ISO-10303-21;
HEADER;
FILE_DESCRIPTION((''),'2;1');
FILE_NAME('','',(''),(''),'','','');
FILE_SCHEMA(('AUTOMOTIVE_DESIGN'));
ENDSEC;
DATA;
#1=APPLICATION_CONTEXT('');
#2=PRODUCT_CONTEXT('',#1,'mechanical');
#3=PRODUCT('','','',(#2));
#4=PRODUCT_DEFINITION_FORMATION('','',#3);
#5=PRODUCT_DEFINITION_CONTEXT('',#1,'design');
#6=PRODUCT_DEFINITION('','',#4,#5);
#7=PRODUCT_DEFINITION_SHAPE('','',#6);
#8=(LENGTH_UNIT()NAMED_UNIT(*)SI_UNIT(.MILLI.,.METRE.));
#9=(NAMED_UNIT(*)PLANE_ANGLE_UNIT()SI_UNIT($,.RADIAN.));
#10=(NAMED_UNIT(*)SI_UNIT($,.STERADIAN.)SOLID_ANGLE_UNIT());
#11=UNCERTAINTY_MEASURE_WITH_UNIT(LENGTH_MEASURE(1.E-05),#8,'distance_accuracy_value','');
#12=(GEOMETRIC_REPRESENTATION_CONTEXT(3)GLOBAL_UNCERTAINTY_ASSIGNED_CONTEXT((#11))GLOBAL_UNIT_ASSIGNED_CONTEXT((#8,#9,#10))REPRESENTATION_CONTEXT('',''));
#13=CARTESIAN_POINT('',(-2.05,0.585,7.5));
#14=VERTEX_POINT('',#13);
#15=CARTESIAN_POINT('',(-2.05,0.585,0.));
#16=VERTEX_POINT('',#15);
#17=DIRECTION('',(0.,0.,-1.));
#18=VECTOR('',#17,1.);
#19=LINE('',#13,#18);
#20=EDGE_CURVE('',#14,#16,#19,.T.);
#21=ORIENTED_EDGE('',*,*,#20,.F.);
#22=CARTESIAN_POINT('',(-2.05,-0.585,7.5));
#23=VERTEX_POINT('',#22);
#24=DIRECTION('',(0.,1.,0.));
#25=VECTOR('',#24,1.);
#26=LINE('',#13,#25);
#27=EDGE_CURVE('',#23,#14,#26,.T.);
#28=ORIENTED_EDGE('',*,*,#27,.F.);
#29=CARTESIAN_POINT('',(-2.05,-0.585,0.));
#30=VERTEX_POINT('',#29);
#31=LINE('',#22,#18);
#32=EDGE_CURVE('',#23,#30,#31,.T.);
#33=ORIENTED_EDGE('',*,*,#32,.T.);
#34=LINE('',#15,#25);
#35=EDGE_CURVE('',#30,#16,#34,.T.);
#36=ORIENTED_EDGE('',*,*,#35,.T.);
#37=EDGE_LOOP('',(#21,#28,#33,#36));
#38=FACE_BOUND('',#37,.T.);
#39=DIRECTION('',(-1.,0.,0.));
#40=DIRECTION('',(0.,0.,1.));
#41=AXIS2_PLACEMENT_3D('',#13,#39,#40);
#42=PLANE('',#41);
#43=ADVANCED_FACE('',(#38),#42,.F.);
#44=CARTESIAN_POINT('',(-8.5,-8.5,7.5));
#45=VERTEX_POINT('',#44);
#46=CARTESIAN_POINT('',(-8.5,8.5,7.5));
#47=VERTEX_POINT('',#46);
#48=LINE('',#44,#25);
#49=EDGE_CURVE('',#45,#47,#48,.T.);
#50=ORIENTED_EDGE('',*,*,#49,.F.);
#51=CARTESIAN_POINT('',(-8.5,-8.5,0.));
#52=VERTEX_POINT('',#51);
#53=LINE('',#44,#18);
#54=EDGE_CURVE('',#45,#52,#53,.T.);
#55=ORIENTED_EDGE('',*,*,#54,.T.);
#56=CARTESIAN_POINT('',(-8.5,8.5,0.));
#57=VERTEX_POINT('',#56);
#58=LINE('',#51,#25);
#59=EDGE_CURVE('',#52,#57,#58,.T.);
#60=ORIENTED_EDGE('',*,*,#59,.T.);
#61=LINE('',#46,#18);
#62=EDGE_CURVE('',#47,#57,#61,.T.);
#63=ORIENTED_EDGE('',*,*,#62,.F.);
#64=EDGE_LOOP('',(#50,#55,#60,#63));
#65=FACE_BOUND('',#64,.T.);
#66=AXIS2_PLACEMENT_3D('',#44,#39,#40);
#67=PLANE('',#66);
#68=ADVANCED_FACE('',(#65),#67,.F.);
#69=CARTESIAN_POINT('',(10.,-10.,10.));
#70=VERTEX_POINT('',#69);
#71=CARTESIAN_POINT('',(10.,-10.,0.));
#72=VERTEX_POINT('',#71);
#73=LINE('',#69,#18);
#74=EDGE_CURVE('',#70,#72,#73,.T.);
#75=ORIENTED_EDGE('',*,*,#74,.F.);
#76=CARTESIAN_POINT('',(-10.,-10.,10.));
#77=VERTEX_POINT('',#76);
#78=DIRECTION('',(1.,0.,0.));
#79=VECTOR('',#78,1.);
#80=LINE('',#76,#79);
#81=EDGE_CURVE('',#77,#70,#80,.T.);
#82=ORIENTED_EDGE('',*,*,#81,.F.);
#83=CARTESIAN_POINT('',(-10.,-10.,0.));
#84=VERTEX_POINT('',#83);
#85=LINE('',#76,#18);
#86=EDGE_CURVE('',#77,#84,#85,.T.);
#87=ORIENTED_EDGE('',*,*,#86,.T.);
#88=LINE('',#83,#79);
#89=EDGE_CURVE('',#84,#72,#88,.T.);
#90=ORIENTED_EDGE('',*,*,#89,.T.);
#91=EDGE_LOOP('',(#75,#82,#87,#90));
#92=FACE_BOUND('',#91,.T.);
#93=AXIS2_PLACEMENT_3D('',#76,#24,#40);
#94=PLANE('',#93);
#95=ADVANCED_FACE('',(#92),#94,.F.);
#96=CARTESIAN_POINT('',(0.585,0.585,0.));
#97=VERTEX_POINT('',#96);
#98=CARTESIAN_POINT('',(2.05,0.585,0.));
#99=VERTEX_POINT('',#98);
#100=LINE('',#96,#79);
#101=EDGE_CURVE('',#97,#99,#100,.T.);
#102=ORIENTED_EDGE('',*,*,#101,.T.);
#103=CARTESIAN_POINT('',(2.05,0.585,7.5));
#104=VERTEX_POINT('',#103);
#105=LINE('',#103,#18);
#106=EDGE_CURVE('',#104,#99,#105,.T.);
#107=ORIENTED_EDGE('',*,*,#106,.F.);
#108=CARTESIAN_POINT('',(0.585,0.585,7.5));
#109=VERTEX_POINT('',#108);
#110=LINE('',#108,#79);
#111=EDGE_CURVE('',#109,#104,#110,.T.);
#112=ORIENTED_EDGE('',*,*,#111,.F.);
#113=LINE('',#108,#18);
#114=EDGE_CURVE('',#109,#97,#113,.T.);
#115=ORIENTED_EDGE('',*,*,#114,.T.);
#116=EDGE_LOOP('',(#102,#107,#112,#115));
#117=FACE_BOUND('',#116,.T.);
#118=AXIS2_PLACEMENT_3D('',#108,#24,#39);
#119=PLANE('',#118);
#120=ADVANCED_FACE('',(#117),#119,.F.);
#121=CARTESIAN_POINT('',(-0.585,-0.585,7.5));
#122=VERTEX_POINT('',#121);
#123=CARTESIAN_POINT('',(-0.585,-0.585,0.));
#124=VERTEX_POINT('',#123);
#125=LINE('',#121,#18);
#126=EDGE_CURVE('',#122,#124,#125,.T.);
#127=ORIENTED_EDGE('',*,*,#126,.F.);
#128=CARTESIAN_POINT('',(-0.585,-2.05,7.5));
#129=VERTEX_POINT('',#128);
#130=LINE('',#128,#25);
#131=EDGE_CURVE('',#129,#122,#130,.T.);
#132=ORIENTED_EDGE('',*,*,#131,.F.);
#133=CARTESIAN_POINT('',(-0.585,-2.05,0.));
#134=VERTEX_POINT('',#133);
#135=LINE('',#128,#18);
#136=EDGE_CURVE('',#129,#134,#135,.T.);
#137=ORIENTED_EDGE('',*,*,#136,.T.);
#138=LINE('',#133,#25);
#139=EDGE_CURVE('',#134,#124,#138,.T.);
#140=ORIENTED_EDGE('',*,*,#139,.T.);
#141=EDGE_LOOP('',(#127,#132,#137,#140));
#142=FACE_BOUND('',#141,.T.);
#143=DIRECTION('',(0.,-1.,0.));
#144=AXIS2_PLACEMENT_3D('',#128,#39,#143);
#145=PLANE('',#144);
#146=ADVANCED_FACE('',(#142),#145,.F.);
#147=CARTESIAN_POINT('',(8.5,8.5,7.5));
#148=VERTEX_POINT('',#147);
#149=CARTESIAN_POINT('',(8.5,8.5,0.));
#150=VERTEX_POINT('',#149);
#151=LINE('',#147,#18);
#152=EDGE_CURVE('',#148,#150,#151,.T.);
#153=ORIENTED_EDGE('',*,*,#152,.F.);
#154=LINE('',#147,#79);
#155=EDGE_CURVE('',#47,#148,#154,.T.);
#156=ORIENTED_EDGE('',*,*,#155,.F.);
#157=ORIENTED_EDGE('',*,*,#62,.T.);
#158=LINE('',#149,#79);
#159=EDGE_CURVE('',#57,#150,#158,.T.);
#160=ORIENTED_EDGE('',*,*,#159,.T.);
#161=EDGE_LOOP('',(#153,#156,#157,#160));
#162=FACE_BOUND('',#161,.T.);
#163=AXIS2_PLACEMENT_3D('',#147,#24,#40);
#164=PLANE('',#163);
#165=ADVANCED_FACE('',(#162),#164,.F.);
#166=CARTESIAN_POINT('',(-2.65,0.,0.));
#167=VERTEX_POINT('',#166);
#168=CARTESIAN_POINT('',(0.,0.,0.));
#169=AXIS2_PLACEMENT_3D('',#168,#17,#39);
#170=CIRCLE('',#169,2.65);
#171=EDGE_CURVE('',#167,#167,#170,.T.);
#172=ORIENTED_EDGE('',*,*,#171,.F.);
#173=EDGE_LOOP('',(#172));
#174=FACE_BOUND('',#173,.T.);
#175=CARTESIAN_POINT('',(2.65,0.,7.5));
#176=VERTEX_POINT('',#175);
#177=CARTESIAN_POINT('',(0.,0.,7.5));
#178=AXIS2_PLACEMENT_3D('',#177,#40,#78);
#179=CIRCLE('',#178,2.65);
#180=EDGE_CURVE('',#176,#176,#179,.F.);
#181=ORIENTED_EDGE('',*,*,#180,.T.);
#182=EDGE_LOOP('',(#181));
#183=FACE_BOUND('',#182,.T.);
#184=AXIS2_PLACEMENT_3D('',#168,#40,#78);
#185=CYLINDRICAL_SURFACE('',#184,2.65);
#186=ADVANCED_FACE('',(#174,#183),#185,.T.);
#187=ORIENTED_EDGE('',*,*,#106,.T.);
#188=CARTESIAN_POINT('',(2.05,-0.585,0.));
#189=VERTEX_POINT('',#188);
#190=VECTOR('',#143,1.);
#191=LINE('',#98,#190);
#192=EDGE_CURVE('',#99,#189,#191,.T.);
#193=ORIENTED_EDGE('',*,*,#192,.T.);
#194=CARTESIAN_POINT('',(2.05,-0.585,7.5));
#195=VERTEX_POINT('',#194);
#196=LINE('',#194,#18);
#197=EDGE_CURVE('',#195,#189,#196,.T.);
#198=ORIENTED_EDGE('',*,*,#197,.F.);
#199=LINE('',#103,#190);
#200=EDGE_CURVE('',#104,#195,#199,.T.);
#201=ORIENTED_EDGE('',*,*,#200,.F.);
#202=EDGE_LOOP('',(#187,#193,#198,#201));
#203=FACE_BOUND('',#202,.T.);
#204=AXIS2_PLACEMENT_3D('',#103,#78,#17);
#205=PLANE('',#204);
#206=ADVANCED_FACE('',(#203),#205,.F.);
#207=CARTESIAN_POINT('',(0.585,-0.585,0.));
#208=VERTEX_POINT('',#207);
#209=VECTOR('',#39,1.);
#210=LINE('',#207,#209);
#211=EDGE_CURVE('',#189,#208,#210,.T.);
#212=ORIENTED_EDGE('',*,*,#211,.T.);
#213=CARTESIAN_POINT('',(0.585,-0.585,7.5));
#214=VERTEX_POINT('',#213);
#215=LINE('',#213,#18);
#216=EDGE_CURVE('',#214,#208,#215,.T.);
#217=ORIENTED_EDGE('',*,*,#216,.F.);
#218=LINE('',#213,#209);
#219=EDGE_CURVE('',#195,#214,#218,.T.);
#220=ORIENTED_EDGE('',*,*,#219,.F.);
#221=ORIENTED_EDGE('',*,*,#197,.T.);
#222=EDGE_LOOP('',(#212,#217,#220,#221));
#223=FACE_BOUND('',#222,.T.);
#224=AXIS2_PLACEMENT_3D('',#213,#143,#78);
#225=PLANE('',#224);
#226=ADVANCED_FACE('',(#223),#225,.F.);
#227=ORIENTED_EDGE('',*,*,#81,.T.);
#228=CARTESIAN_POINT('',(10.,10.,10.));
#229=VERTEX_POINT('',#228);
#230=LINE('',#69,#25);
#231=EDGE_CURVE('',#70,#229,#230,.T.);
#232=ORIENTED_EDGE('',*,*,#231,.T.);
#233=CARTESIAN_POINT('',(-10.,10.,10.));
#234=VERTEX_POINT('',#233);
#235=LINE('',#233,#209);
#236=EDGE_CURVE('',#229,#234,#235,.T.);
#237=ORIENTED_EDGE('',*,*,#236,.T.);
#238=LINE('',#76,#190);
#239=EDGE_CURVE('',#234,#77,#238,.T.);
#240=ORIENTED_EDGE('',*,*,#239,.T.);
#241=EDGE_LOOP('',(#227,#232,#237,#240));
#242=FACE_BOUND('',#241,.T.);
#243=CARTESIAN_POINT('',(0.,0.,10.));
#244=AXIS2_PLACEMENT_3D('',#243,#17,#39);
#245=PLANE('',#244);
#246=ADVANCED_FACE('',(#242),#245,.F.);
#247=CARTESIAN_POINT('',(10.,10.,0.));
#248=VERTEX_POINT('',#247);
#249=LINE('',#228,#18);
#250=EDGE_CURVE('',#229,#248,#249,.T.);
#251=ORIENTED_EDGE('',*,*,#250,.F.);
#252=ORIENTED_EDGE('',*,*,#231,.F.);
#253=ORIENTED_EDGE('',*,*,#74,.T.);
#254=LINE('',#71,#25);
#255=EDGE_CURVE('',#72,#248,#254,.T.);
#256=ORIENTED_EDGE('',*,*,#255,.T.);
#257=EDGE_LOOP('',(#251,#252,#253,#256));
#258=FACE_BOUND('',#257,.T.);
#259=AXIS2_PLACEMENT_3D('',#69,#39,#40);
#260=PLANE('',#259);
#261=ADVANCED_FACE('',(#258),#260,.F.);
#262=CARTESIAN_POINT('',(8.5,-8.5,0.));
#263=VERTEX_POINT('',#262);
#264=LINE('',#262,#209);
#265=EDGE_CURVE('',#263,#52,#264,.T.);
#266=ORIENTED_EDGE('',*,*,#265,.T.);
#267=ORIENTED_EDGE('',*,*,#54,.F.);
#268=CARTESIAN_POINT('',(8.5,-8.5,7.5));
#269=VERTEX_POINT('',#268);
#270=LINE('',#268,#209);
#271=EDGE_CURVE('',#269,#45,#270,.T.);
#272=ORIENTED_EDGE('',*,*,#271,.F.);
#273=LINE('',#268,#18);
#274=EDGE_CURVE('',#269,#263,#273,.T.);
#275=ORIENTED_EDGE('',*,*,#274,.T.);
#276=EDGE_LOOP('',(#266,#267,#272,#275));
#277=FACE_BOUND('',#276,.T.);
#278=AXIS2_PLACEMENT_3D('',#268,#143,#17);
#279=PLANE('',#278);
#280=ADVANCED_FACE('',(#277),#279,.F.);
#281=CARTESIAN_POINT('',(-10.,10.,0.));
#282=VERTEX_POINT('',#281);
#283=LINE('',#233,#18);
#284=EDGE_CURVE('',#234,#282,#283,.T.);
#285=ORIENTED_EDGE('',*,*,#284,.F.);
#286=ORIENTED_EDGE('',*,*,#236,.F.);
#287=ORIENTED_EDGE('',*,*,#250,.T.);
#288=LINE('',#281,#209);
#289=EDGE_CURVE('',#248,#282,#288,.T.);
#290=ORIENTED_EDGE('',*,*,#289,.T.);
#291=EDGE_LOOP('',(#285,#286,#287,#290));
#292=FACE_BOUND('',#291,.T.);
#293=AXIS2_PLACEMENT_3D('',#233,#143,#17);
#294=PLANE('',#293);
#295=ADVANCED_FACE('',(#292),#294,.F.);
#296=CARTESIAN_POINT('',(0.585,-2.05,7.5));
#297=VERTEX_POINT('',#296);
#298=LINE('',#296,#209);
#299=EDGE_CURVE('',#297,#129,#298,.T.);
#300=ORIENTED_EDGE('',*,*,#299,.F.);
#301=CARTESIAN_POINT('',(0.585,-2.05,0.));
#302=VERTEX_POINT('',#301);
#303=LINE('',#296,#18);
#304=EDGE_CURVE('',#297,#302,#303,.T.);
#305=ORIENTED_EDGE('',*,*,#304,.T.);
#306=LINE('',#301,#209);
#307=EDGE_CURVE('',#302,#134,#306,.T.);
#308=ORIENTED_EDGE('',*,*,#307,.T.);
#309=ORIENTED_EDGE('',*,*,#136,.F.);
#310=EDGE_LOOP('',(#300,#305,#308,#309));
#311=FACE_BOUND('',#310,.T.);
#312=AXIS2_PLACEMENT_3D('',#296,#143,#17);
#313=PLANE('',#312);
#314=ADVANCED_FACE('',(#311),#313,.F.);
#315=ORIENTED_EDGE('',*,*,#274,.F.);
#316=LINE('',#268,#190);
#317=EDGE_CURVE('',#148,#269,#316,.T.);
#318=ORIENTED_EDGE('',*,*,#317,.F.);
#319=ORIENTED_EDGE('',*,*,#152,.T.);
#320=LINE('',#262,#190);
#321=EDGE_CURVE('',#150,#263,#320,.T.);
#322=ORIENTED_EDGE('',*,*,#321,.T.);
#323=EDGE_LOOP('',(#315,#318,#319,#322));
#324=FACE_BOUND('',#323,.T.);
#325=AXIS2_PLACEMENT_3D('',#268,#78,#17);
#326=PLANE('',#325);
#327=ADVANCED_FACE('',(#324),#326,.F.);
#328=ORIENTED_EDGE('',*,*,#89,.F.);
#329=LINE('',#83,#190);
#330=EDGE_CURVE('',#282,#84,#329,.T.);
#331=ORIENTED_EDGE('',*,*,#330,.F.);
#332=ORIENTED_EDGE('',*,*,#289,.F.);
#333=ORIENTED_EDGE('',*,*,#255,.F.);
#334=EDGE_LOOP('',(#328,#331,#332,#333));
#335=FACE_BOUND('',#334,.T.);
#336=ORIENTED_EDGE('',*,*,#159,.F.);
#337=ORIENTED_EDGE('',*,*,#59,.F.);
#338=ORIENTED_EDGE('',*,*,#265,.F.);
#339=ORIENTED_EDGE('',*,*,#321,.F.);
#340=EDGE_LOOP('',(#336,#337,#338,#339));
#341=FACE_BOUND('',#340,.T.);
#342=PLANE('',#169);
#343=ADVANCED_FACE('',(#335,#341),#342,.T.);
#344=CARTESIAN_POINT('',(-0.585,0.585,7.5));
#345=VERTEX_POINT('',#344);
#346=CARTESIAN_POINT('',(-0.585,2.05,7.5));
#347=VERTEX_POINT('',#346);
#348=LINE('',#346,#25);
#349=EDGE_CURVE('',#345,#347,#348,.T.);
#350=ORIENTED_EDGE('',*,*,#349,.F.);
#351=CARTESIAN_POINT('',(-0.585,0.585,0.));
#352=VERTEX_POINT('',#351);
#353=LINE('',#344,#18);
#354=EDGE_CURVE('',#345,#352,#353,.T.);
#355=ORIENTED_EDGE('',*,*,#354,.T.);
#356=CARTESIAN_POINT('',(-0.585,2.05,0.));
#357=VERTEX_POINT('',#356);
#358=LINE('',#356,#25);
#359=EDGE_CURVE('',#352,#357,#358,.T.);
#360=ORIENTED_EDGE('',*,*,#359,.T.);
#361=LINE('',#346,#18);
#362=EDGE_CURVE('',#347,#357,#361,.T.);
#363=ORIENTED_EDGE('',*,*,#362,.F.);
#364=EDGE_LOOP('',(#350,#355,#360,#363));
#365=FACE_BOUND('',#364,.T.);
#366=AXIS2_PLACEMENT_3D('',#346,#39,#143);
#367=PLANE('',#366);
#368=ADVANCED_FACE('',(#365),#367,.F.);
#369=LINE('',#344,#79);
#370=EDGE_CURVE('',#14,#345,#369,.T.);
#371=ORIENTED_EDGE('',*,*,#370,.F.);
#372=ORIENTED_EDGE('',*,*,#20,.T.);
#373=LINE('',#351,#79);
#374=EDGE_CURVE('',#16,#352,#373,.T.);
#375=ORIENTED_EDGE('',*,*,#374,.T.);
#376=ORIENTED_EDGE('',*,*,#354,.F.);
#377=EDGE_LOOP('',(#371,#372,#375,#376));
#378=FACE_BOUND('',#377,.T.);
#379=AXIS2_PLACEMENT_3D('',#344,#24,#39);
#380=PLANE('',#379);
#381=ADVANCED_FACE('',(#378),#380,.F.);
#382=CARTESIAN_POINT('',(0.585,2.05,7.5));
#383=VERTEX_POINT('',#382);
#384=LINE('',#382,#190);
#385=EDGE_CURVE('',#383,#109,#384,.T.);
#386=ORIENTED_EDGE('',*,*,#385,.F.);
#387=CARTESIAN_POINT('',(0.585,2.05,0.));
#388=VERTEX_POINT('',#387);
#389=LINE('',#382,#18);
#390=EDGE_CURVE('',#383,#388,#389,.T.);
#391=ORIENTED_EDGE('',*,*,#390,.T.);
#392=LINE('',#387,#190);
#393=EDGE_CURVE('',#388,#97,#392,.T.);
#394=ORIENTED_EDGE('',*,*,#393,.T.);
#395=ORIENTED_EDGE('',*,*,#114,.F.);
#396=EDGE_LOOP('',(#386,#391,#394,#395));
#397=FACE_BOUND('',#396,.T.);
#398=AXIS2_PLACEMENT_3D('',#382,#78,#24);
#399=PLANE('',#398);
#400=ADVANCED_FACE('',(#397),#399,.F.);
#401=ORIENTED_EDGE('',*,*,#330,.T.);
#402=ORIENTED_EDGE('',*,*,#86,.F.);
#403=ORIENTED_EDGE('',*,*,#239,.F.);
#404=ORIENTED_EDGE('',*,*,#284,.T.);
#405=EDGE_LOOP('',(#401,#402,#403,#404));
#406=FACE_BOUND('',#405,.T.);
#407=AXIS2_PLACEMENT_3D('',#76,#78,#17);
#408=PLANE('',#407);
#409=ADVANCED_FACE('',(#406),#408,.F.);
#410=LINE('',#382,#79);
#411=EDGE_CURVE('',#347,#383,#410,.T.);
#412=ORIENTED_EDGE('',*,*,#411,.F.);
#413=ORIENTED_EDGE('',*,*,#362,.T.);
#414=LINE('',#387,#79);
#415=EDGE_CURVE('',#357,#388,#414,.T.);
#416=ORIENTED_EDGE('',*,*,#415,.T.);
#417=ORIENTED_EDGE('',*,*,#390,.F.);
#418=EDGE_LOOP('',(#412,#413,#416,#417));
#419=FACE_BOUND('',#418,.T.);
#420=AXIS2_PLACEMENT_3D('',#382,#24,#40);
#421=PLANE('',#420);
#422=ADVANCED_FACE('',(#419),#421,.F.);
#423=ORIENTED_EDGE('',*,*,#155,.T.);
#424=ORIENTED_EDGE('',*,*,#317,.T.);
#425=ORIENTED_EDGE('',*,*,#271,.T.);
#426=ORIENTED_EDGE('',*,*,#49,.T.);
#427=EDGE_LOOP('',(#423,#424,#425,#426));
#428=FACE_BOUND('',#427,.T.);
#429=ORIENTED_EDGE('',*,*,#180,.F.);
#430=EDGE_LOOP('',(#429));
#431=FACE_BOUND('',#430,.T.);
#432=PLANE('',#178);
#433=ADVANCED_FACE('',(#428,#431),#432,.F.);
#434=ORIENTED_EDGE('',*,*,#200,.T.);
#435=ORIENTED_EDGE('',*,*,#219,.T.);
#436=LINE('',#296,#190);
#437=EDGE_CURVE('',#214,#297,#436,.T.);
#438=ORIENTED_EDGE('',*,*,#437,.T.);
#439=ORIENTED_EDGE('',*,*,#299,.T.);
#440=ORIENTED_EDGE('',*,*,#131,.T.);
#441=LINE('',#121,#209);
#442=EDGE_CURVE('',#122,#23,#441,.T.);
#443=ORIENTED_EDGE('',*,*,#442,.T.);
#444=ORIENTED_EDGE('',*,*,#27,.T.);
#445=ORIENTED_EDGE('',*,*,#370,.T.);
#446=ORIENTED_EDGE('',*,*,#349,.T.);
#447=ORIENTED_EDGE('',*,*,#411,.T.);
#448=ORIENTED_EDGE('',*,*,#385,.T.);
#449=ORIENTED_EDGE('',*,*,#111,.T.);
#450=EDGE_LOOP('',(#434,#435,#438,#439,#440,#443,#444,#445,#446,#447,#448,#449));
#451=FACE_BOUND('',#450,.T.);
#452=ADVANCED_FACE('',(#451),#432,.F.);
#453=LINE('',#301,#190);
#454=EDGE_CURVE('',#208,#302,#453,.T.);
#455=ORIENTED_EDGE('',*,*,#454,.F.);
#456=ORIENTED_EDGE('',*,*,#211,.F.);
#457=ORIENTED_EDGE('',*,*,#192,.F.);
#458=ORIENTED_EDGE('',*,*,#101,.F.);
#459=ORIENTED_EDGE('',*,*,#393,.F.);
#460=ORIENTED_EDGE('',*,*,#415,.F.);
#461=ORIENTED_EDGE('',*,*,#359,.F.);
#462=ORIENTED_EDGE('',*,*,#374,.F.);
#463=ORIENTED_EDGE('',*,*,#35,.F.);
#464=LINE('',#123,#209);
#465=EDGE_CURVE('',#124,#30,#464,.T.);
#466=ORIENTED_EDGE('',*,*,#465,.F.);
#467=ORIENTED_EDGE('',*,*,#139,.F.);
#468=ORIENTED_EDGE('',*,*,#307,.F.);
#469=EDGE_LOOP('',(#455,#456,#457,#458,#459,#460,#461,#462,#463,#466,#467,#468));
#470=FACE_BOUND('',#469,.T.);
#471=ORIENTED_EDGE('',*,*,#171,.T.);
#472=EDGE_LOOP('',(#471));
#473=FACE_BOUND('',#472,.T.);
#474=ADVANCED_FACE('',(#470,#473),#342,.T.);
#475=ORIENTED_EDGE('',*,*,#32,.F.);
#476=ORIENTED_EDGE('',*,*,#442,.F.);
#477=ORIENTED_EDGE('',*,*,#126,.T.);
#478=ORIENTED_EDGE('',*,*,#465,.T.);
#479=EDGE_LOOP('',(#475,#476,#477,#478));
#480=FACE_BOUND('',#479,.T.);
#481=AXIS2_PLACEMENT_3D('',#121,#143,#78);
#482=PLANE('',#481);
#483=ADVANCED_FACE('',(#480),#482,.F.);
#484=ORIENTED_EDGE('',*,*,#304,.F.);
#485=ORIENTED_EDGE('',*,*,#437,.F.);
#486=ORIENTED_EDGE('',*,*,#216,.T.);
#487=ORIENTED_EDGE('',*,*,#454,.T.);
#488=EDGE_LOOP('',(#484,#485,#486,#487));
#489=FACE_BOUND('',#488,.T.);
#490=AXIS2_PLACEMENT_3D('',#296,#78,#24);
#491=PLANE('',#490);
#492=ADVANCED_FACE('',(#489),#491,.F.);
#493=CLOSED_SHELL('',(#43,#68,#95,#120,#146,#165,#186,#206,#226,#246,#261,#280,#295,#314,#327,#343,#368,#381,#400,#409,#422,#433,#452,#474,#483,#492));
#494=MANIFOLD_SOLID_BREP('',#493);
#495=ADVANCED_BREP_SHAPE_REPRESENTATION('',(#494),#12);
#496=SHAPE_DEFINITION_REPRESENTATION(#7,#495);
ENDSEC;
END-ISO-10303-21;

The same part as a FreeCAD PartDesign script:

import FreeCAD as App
import Part
import Sketcher
from FreeCAD import Vector
Q = App.Units.Quantity


def add_polygon(sketch, points):
    """Adds a closed chain of lines whose ends are joined by coincident constraints."""
    first, n = sketch.GeometryCount, len(points)
    for a, b in zip(points, points[1:] + points[:1]):
        sketch.addGeometry(Part.LineSegment(App.Vector(*a, 0), App.Vector(*b, 0)), False)
    for i in range(n):
        sketch.addConstraint(Sketcher.Constraint("Coincident", first + i, 2, first + (i + 1) % n, 1))

doc = App.newDocument("Part")
body = doc.addObject("PartDesign::Body", "Body")

sketch1 = doc.addObject("Sketcher::SketchObject", "Sketch")
body.addObject(sketch1)
sketch1.AttachmentSupport = (doc.XY_Plane, [""])
sketch1.MapMode = "FlatFace"
add_polygon(sketch1, [(-10, 10), (-10, -10), (10, -10), (10, 10)])
sketch1.addConstraint(Sketcher.Constraint("Vertical", 0))
sketch1.addConstraint(Sketcher.Constraint("Horizontal", 1))
sketch1.addConstraint(Sketcher.Constraint("Vertical", 2))
sketch1.addConstraint(Sketcher.Constraint("Horizontal", 3))
sketch1.addConstraint(Sketcher.Constraint("Symmetric", 0, 2, 2, 2, -1, 1))
sketch1.addConstraint(Sketcher.Constraint("Equal", 3, 0))
sketch1.addConstraint(Sketcher.Constraint("DistanceX", 1, 1, 1, 2, Q("20 mm")))
pad1 = doc.addObject("PartDesign::Pad", "Pad")
body.addObject(pad1)
pad1.Profile = sketch1
pad1.Length = 10

sketch2 = doc.addObject("Sketcher::SketchObject", "Sketch001")
body.addObject(sketch2)
sketch2.AttachmentSupport = (doc.XY_Plane, [""])
sketch2.MapMode = "FlatFace"
add_polygon(sketch2, [(8, 8), (8, -8), (-8, -8), (-8, 8)])
sketch2.addConstraint(Sketcher.Constraint("Vertical", 0))
sketch2.addConstraint(Sketcher.Constraint("Horizontal", 1))
sketch2.addConstraint(Sketcher.Constraint("Vertical", 2))
sketch2.addConstraint(Sketcher.Constraint("Horizontal", 3))
sketch2.addConstraint(Sketcher.Constraint("Symmetric", 0, 2, 2, 2, -1, 1))
sketch2.addConstraint(Sketcher.Constraint("Equal", 3, 0))
sketch2.addConstraint(Sketcher.Constraint("DistanceX", 1, 2, 1, 1, Q("17 mm")))
pocket1 = doc.addObject("PartDesign::Pocket", "Pocket")
body.addObject(pocket1)
pocket1.Profile = sketch2
pocket1.Length = 7.5
pocket1.Reversed = True

sketch3 = doc.addObject("Sketcher::SketchObject", "Sketch002")
body.addObject(sketch3)
sketch3.AttachmentSupport = (doc.XY_Plane, [""])
sketch3.MapMode = "FlatFace"
sketch3.AttachmentOffset = App.Placement(Vector(0, 0, 7.5), App.Rotation())
sketch3.addGeometry(Part.Circle(Vector(0, 0, 0), Vector(0, 0, 1), 2.6), False)
sketch3.addConstraint(Sketcher.Constraint("Coincident", 0, 3, -1, 1))
sketch3.addConstraint(Sketcher.Constraint("Diameter", 0, Q("5.3 mm")))
pad2 = doc.addObject("PartDesign::Pad", "Pad001")
body.addObject(pad2)
pad2.Profile = sketch3
pad2.Length = 7.5
pad2.Reversed = True

sketch4 = doc.addObject("Sketcher::SketchObject", "Sketch003")
body.addObject(sketch4)
sketch4.AttachmentSupport = (doc.XY_Plane, [""])
sketch4.MapMode = "FlatFace"
add_polygon(sketch4, [(-0.6, 2), (0.6, 2), (0.6, 0.6), (2, 0.6), (2, -0.6), (0.6, -0.6), (0.6, -2), (-0.6, -2), (-0.6, -0.6), (-2, -0.6), (-2, 0.6), (-0.6, 0.6)])
sketch4.addConstraint(Sketcher.Constraint("Horizontal", 0))
sketch4.addConstraint(Sketcher.Constraint("Vertical", 1))
sketch4.addConstraint(Sketcher.Constraint("Horizontal", 2))
sketch4.addConstraint(Sketcher.Constraint("Vertical", 3))
sketch4.addConstraint(Sketcher.Constraint("Horizontal", 4))
sketch4.addConstraint(Sketcher.Constraint("Vertical", 5))
sketch4.addConstraint(Sketcher.Constraint("Horizontal", 6))
sketch4.addConstraint(Sketcher.Constraint("Vertical", 7))
sketch4.addConstraint(Sketcher.Constraint("Horizontal", 8))
sketch4.addConstraint(Sketcher.Constraint("Vertical", 9))
sketch4.addConstraint(Sketcher.Constraint("Horizontal", 10))
sketch4.addConstraint(Sketcher.Constraint("Vertical", 11))
sketch4.addConstraint(Sketcher.Constraint("Symmetric", 0, 2, 6, 2, -1, 1))
sketch4.addConstraint(Sketcher.Constraint("Symmetric", 2, 2, 8, 2, -1, 1))
sketch4.addConstraint(Sketcher.Constraint("Symmetric", 4, 2, 10, 2, -1, 1))
sketch4.addConstraint(Sketcher.Constraint("Symmetric", 4, 2, 7, 2, -2))
sketch4.addConstraint(Sketcher.Constraint("Equal", 10, 1))
sketch4.addConstraint(Sketcher.Constraint("Equal", 6, 3))
sketch4.addConstraint(Sketcher.Constraint("DistanceX", 0, 1, 0, 2, Q("1.17 mm")))
sketch4.addConstraint(Sketcher.Constraint("DistanceY", 5, 2, 0, 2, Q("4.1 mm")))
pocket2 = doc.addObject("PartDesign::Pocket", "Pocket001")
body.addObject(pocket2)
pocket2.Profile = sketch4
pocket2.Length = 7.5
pocket2.Reversed = True

doc.recompute()
